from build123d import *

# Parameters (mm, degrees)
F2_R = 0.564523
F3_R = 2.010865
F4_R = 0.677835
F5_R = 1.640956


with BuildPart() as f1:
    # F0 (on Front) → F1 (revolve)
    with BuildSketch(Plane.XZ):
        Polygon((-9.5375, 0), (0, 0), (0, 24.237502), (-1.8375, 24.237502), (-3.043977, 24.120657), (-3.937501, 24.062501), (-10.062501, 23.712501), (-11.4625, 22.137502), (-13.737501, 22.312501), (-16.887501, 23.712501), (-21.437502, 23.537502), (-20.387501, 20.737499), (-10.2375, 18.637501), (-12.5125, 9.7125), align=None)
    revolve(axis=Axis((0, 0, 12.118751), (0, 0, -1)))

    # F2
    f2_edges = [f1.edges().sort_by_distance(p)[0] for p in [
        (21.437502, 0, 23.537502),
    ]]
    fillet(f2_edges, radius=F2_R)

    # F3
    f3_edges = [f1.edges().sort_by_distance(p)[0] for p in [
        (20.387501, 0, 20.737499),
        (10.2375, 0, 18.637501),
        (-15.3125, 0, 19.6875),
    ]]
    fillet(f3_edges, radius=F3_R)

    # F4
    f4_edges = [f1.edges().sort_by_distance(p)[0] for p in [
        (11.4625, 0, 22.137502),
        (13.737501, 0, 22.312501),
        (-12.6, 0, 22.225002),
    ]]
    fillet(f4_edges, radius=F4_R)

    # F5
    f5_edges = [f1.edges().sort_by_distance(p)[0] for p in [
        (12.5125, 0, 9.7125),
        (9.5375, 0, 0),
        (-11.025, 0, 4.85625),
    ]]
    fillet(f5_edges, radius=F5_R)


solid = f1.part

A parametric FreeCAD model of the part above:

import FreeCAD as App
import Part
import Sketcher
from FreeCAD import Vector


def edges_at(feature, points):
    """Names of the edges that pass closest to the given points."""
    edges = feature.Shape.Edges
    near = lambda p: min(range(len(edges)), key=lambda i: edges[i].distToShape(Part.Vertex(*p))[0])
    return sorted({f"Edge{near(p) + 1}" for p in points})

doc = App.newDocument("Part")
body = doc.addObject("PartDesign::Body", "Body")

# Sketch on XZ plane
sketch1 = body.newObject("Sketcher::SketchObject", "Sketch")
sketch1.AttachmentSupport = (doc.getObject("XZ_Plane"), [""])
sketch1.MapMode = "FlatFace"
sketch1.addGeometry(Part.LineSegment(Vector(-9.5375, 0, 0), Vector(0, 0, 0)), False)
sketch1.addGeometry(Part.LineSegment(Vector(0, 0, 0), Vector(0, 24.237502, 0)), False)
sketch1.addGeometry(Part.LineSegment(Vector(0, 24.237502, 0), Vector(-1.8375, 24.237502, 0)), False)
sketch1.addGeometry(Part.LineSegment(Vector(-1.8375, 24.237502, 0), Vector(-3.043977, 24.120657, 0)), False)
sketch1.addGeometry(Part.LineSegment(Vector(-3.043977, 24.120657, 0), Vector(-3.937501, 24.062501, 0)), False)
sketch1.addGeometry(Part.LineSegment(Vector(-3.937501, 24.062501, 0), Vector(-10.062501, 23.712501, 0)), False)
sketch1.addGeometry(Part.LineSegment(Vector(-10.062501, 23.712501, 0), Vector(-11.4625, 22.137502, 0)), False)
sketch1.addGeometry(Part.LineSegment(Vector(-11.4625, 22.137502, 0), Vector(-13.737501, 22.312501, 0)), False)
sketch1.addGeometry(Part.LineSegment(Vector(-13.737501, 22.312501, 0), Vector(-16.887501, 23.712501, 0)), False)
sketch1.addGeometry(Part.LineSegment(Vector(-16.887501, 23.712501, 0), Vector(-21.437502, 23.537502, 0)), False)
sketch1.addGeometry(Part.LineSegment(Vector(-21.437502, 23.537502, 0), Vector(-20.387501, 20.737499, 0)), False)
sketch1.addGeometry(Part.LineSegment(Vector(-20.387501, 20.737499, 0), Vector(-10.2375, 18.637501, 0)), False)
sketch1.addGeometry(Part.LineSegment(Vector(-10.2375, 18.637501, 0), Vector(-12.5125, 9.7125, 0)), False)
sketch1.addGeometry(Part.LineSegment(Vector(-12.5125, 9.7125, 0), Vector(-9.5375, 0, 0)), False)
sketch1.addConstraint(Sketcher.Constraint("Coincident", 0, 2, 1, 1))
sketch1.addConstraint(Sketcher.Constraint("Coincident", 1, 2, 2, 1))
sketch1.addConstraint(Sketcher.Constraint("Coincident", 2, 2, 3, 1))
sketch1.addConstraint(Sketcher.Constraint("Coincident", 3, 2, 4, 1))
sketch1.addConstraint(Sketcher.Constraint("Coincident", 4, 2, 5, 1))
sketch1.addConstraint(Sketcher.Constraint("Coincident", 5, 2, 6, 1))
sketch1.addConstraint(Sketcher.Constraint("Coincident", 6, 2, 7, 1))
sketch1.addConstraint(Sketcher.Constraint("Coincident", 7, 2, 8, 1))
sketch1.addConstraint(Sketcher.Constraint("Coincident", 8, 2, 9, 1))
sketch1.addConstraint(Sketcher.Constraint("Coincident", 9, 2, 10, 1))
sketch1.addConstraint(Sketcher.Constraint("Coincident", 10, 2, 11, 1))
sketch1.addConstraint(Sketcher.Constraint("Coincident", 11, 2, 12, 1))
sketch1.addConstraint(Sketcher.Constraint("Coincident", 12, 2, 13, 1))
sketch1.addConstraint(Sketcher.Constraint("Coincident", 13, 2, 0, 1))
sketch1.addConstraint(Sketcher.Constraint("Horizontal", 0))
sketch1.addConstraint(Sketcher.Constraint("Vertical", 1))
sketch1.addConstraint(Sketcher.Constraint("Horizontal", 2))
sketch1.addConstraint(Sketcher.Constraint("Coincident", 0, 2, -1, 1))
sketch1.addConstraint(Sketcher.Constraint("Horizontal", 5, 2, 8, 2))
sketch1.addConstraint(Sketcher.Constraint("DistanceY", 12, 2, 5, 2, 14.000001))
sketch1.addConstraint(Sketcher.Constraint("DistanceX", 4, 2, 2, 2, 2.100001))
sketch1.addConstraint(Sketcher.Constraint("DistanceX", 6, 2, 5, 2, 1.399999))
sketch1.addConstraint(Sketcher.Constraint("DistanceY", 6, 2, 2, 2, 2.1))
sketch1.addConstraint(Sketcher.Constraint("DistanceY", 7, 2, 5, 2, 1.4))
sketch1.addConstraint(Sketcher.Constraint("DistanceX", 7, 2, 4, 2, 9.8))
sketch1.addConstraint(Sketcher.Constraint("DistanceX", 9, 2, 7, 2, 7.700001))
sketch1.addConstraint(Sketcher.Constraint("DistanceY", 6, 2, 9, 2, 1.4))
sketch1.addConstraint(Sketcher.Constraint("DistanceX", 10, 2, 8, 2, 3.5))
sketch1.addConstraint(Sketcher.Constraint("DistanceY", 11, 2, 6, 2, 3.500001))
sketch1.addConstraint(Sketcher.Constraint("DistanceX", 7, 2, 11, 2, 3.500001))
sketch1.addConstraint(Sketcher.Constraint("DistanceX", 11, 2, 13, 2, 0.7))
sketch1.addConstraint(Sketcher.Constraint("DistanceY", 5, 2, 4, 2, 0.35))
sketch1.addConstraint(Sketcher.Constraint("DistanceX", 8, 2, 7, 2, 3.15))
sketch1.addConstraint(Sketcher.Constraint("DistanceX", 12, 2, 6, 2, 1.05))
sketch1.addConstraint(Sketcher.Constraint("DistanceX", 0, 1, 0, 2, 9.5375))
sketch1.addConstraint(Sketcher.Constraint("DistanceY", 1, 1, 1, 2, 24.237502))
sketch1.addConstraint(Sketcher.Constraint("DistanceY", 4, 2, 2, 2, 0.175001))
sketch1.addConstraint(Sketcher.Constraint("DistanceX", 5, 2, 4, 2, 6.125))
sketch1.addConstraint(Sketcher.Constraint("DistanceY", 10, 2, 8, 2, 2.975002))
sketch1.addConstraint(Sketcher.Constraint("Distance", 3, 1.212122))
sketch1.addConstraint(Sketcher.Constraint("Distance", 4, 0.895415))
revolution = body.newObject("PartDesign::Revolution", "Revolution")
revolution.Profile = sketch1
revolution.ReferenceAxis = (sketch1, ["V_Axis"])
revolution.Angle = 360
doc.recompute()

fillet = body.newObject("PartDesign::Fillet", "Fillet")
fillet.Base = (revolution, edges_at(revolution, [(21.438, 0, 23.538)]))
fillet.Radius = 0.564523
doc.recompute()

fillet2 = body.newObject("PartDesign::Fillet", "Fillet001")
fillet2.Base = (fillet, edges_at(fillet, [(20.388, 0, 20.737), (10.238, 0, 18.638), (-15.313, 0, 19.688)]))
fillet2.Radius = 2.010865
doc.recompute()

fillet3 = body.newObject("PartDesign::Fillet", "Fillet002")
fillet3.Base = (fillet2, edges_at(fillet2, [(11.463, 0, 22.138), (13.738, 0, 22.313), (-12.6, 0, 22.225)]))
fillet3.Radius = 0.677835
doc.recompute()

fillet4 = body.newObject("PartDesign::Fillet", "Fillet003")
fillet4.Base = (fillet3, edges_at(fillet3, [(12.512, 0, 9.713), (9.537, 0, 0), (-11.025, 0, 4.856)]))
fillet4.Radius = 1.640956

doc.recompute()
